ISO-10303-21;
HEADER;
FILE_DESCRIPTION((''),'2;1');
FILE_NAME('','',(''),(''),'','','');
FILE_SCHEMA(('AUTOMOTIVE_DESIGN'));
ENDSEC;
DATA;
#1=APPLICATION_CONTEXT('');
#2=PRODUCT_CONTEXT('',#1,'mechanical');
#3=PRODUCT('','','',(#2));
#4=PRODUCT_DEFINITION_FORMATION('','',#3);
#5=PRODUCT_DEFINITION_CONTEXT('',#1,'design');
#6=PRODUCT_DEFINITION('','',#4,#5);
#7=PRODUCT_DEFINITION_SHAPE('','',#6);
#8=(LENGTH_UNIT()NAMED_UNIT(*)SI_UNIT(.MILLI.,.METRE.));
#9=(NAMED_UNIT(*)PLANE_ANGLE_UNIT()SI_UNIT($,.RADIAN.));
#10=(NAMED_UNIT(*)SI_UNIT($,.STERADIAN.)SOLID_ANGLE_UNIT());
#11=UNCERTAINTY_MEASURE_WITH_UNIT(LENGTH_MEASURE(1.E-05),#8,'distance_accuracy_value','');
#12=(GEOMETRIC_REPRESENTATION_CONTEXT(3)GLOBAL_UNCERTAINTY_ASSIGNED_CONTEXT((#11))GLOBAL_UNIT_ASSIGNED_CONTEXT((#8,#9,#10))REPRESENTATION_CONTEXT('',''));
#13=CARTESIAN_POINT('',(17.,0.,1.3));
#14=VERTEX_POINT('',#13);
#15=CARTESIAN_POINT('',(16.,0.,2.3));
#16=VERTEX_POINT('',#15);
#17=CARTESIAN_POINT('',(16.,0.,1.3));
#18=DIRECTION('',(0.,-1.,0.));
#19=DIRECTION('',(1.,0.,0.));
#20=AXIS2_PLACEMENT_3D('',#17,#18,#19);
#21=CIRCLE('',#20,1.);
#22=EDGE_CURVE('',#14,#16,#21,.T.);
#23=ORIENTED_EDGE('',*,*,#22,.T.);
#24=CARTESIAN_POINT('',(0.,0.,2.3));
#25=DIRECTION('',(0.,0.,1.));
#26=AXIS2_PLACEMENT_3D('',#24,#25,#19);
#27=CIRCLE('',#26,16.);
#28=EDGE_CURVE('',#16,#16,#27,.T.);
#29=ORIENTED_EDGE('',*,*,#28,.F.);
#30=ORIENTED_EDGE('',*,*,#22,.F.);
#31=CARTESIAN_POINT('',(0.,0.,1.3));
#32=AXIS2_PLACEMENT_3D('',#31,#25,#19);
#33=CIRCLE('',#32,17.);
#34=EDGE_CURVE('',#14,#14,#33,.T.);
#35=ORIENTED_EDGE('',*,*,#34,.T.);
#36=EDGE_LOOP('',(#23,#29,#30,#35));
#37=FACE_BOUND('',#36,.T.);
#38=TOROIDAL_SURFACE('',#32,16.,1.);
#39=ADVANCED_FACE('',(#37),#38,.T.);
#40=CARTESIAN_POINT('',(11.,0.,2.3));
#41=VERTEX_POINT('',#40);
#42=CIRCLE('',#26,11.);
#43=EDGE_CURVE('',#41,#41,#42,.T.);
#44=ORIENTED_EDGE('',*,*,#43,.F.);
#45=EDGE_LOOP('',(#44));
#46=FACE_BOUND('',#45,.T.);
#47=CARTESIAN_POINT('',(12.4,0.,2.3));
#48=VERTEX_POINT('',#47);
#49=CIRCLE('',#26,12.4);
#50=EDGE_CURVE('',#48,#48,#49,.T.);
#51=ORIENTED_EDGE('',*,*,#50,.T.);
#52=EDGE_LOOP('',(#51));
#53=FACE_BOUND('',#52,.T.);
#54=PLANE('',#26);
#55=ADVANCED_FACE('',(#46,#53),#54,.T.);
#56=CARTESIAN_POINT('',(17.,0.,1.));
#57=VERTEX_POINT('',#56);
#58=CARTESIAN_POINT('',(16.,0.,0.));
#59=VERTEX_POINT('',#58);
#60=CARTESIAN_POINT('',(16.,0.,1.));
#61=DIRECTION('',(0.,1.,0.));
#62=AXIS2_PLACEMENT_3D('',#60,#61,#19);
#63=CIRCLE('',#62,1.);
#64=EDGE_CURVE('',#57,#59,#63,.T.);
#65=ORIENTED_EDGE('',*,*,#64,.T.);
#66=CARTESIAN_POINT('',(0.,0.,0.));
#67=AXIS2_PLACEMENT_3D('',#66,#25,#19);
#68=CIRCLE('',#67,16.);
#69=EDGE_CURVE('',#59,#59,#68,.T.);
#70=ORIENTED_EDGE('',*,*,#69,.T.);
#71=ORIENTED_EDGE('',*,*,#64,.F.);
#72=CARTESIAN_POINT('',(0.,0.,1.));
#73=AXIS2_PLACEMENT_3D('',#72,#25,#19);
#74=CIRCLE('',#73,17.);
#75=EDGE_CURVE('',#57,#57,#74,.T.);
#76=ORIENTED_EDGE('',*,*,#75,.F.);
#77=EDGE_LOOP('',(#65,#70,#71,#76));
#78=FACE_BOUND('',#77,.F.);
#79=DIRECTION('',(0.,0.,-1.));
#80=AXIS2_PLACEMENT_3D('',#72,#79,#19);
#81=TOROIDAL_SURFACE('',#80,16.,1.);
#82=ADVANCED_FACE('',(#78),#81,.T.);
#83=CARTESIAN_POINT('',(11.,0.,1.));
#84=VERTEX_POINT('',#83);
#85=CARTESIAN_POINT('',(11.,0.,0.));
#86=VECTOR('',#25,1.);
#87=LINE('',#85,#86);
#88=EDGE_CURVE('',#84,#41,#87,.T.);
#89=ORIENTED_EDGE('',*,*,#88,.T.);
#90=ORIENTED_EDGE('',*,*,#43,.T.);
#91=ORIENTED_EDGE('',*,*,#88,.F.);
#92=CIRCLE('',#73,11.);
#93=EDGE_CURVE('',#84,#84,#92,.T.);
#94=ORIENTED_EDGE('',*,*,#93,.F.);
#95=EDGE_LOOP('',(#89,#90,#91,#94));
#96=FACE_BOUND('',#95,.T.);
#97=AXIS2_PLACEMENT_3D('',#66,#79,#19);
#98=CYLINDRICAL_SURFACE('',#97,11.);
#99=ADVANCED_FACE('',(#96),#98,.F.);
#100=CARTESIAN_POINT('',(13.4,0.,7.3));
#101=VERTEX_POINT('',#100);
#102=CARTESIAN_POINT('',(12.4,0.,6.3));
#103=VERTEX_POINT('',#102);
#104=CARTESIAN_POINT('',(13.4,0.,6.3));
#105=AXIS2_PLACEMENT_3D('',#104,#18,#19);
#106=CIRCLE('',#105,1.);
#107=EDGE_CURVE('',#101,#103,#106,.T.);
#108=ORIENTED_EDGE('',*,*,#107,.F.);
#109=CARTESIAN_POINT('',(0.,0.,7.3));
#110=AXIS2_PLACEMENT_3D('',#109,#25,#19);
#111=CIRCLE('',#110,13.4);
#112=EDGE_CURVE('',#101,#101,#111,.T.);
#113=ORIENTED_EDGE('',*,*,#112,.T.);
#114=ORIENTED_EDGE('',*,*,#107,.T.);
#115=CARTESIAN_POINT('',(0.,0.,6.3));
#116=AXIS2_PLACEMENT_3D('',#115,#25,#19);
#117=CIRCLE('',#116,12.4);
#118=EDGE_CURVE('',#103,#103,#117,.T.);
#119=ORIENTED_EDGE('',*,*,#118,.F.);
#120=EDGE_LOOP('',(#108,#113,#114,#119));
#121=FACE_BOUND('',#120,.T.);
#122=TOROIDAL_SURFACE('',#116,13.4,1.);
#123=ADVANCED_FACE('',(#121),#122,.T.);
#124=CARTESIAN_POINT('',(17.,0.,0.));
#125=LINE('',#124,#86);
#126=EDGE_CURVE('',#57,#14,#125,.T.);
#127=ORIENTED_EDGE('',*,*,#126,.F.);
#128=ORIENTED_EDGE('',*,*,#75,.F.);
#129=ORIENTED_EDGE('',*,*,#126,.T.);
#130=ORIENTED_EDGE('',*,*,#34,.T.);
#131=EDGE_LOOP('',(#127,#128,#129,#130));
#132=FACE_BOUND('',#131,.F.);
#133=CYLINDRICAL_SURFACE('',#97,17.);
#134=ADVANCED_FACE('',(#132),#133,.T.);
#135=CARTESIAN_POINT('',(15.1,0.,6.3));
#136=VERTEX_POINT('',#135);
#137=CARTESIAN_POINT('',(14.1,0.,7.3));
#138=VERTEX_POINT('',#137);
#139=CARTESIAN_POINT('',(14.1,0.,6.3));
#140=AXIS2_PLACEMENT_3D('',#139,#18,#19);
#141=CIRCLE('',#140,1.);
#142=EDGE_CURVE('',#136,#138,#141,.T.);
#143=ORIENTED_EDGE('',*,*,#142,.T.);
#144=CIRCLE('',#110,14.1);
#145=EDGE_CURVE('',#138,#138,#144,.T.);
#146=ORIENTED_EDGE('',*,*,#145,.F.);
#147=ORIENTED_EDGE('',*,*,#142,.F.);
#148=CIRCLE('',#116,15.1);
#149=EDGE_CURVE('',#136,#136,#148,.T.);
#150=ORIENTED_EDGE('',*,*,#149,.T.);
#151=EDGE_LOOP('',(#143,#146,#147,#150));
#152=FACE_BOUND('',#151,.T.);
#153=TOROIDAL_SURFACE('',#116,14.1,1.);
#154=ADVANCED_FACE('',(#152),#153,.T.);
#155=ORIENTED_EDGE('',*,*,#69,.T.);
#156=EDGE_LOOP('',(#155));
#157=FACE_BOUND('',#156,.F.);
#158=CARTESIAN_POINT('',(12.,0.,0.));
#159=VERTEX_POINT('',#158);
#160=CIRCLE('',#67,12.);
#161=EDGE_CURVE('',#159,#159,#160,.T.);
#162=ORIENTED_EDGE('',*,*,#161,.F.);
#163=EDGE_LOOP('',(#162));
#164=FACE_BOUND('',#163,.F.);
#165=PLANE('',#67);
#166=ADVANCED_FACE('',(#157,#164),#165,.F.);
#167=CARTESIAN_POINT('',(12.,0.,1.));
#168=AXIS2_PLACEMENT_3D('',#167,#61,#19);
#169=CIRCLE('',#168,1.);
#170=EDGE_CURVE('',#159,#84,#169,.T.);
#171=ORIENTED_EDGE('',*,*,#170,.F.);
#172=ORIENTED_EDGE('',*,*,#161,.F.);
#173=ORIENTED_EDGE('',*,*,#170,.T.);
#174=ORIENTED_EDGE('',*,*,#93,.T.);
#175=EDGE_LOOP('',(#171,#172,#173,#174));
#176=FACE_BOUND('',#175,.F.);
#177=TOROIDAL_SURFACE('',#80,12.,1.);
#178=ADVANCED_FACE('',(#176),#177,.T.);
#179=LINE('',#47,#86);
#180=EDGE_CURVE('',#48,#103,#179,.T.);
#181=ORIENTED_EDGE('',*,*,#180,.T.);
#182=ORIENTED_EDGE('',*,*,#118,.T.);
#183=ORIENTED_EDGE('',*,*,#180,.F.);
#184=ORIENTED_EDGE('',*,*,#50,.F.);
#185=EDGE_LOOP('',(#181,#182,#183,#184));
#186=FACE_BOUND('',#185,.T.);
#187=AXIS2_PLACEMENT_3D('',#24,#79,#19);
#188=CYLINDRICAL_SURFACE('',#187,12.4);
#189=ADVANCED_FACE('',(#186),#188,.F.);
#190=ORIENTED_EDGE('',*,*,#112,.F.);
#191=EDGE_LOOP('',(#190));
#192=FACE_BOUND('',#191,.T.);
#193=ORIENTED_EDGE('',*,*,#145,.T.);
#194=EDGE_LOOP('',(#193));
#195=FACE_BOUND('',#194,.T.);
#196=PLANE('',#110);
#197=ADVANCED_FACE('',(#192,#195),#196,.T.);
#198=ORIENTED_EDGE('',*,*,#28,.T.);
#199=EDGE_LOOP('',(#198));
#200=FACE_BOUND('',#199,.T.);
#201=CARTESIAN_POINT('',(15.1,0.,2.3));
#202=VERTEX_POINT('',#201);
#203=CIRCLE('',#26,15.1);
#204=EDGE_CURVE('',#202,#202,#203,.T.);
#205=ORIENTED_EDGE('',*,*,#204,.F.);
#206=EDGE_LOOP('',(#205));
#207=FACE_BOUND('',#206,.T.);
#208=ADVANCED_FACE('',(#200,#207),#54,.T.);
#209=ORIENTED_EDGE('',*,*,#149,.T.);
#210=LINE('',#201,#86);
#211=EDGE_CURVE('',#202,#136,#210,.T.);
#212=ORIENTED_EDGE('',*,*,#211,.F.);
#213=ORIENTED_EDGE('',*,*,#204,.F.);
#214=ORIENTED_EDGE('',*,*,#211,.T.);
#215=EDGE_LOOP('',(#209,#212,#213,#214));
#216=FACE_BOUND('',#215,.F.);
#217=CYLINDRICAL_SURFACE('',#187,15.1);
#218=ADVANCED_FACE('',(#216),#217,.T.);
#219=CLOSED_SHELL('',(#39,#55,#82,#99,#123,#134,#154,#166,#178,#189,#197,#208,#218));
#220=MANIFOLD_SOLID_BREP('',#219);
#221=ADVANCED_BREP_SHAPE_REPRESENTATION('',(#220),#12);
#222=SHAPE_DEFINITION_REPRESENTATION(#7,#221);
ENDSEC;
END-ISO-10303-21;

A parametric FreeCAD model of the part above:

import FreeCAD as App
import Part
import Sketcher

V = App.Vector
Q = App.Units.Quantity


def edges_at(feature, points):
    """Names of the edges that pass closest to the given points."""
    edges = feature.Shape.Edges
    near = lambda p: min(range(len(edges)), key=lambda i: edges[i].distToShape(Part.Vertex(*p))[0])
    return sorted({f"Edge{near(p) + 1}" for p in points})

doc = App.newDocument("Part")
body = doc.addObject("PartDesign::Body", "Body")

sketch1 = doc.addObject("Sketcher::SketchObject", "Sketch")
body.addObject(sketch1)
sketch1.AttachmentSupport = (doc.XY_Plane, [""])
sketch1.MapMode = "FlatFace"
sketch1.addGeometry([
    Part.Circle(V(0, 0, 0), V(0, 0, 1), 17),
    Part.Circle(V(0, 0, 0), V(0, 0, 1), 11),
], False)
sketch1.addConstraint([
    Sketcher.Constraint("Coincident", 0, 3, -1, 1),
    Sketcher.Constraint("Coincident", 1, 3, -1, 1),
    Sketcher.Constraint("Diameter", 0, Q("34 mm")),
    Sketcher.Constraint("Diameter", 1, Q("22 mm")),
])
pad1 = doc.addObject("PartDesign::Pad", "Pad")
body.addObject(pad1)
pad1.Profile = sketch1
pad1.Length = 2.3

sketch2 = doc.addObject("Sketcher::SketchObject", "Sketch001")
body.addObject(sketch2)
sketch2.AttachmentSupport = (doc.XY_Plane, [""])
sketch2.MapMode = "FlatFace"
sketch2.AttachmentOffset = App.Placement(V(0, 0, 2.3), App.Rotation())
sketch2.addGeometry([
    Part.Circle(V(0, 0, 0), V(0, 0, 1), 15),
    Part.Circle(V(0, 0, 0), V(0, 0, 1), 12),
], False)
sketch2.addConstraint([
    Sketcher.Constraint("Coincident", 0, 3, -1, 1),
    Sketcher.Constraint("Coincident", 1, 3, -1, 1),
    Sketcher.Constraint("Diameter", 0, Q("30.2 mm")),
    Sketcher.Constraint("Diameter", 1, Q("24.8 mm")),
])
pad2 = doc.addObject("PartDesign::Pad", "Pad001")
body.addObject(pad2)
pad2.Profile = sketch2
pad2.Length = 5
doc.recompute()

fillet = doc.addObject("PartDesign::Fillet", "Fillet")
body.addObject(fillet)
fillet.Base = (pad2, edges_at(pad2, [
    (-17, 0, 0),
    (-11, 0, 0),
    (-15.1, 0, 7.3),
    (-12.4, 0, 7.3),
    (-17, 0, 2.3),
]))
fillet.Radius = 1

doc.recompute()
